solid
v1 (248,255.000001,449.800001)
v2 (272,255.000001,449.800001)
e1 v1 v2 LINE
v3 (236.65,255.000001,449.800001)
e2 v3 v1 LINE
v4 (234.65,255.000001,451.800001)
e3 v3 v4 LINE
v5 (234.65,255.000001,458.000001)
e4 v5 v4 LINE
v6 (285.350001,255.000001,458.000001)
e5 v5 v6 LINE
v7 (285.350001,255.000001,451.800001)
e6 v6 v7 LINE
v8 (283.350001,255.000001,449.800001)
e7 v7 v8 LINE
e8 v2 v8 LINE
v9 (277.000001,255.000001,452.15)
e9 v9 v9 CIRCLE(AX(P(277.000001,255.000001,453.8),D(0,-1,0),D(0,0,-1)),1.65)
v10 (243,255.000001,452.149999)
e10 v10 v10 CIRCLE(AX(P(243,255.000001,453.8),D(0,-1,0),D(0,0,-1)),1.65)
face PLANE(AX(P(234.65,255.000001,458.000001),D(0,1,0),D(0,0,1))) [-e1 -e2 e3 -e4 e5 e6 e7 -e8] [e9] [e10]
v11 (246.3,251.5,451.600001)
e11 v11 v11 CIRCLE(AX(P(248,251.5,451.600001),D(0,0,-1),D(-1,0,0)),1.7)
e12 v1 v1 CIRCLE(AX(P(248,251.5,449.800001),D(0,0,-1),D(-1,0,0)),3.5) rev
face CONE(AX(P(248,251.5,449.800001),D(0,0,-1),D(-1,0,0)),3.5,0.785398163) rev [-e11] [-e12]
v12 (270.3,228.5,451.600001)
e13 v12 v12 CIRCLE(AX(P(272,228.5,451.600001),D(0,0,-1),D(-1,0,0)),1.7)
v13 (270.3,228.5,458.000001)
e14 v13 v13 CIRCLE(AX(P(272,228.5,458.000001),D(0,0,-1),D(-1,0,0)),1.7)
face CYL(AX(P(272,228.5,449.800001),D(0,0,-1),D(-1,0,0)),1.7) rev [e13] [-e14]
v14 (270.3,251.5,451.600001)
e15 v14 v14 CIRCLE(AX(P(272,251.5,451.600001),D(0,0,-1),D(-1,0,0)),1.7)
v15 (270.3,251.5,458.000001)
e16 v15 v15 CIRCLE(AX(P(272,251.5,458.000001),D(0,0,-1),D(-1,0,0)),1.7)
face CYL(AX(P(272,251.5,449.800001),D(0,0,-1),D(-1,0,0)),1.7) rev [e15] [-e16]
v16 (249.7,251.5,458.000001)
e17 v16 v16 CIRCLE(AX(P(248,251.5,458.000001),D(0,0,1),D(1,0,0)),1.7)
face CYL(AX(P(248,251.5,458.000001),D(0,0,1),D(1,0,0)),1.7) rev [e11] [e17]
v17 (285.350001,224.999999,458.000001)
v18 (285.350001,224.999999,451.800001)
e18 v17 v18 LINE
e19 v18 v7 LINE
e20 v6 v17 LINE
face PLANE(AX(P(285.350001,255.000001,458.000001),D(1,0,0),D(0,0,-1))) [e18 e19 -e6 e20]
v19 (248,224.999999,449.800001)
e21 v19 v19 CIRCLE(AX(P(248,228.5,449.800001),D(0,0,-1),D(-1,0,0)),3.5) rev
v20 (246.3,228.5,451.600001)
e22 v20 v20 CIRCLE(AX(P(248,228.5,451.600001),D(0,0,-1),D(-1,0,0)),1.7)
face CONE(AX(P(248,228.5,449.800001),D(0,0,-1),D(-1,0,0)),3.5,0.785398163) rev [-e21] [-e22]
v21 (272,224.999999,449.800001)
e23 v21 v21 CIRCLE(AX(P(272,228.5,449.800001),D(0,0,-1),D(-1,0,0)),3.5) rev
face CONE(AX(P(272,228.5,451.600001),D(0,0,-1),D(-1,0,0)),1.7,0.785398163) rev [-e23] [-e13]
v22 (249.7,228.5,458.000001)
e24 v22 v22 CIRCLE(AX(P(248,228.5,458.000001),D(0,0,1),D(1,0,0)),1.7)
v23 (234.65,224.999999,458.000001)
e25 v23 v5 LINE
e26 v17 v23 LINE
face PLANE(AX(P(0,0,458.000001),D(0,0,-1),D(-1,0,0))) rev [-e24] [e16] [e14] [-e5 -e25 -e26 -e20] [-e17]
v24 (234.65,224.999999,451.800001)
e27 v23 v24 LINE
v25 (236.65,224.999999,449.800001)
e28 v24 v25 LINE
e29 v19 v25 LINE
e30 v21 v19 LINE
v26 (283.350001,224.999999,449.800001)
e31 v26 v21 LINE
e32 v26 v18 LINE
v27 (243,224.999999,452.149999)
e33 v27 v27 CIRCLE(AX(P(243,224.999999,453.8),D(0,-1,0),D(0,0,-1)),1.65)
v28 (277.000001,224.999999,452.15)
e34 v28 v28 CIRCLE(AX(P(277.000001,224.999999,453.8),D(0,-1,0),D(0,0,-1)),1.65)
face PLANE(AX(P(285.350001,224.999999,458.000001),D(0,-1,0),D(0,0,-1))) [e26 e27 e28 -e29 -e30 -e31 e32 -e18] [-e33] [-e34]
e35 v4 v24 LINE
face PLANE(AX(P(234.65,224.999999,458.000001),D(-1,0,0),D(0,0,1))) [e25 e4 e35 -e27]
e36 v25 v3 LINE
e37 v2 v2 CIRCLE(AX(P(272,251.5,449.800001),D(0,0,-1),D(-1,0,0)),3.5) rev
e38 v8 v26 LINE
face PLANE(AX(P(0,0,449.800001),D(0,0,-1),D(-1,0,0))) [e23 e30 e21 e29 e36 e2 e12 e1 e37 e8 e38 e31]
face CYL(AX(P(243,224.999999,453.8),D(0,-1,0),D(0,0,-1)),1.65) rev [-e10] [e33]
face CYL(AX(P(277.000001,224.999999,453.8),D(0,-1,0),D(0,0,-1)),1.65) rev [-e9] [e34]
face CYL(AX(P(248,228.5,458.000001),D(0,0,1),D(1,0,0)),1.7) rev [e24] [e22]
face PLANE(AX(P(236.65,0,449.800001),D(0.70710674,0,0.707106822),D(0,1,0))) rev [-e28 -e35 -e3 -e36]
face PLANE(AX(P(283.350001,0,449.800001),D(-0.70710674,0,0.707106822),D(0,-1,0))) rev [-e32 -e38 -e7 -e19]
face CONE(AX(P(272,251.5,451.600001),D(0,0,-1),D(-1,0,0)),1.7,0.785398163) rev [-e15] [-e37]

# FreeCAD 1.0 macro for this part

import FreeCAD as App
import Part
import Sketcher
Q = App.Units.Quantity


def edges_at(feature, points):
    """Names of the edges that pass closest to the given points."""
    edges = feature.Shape.Edges
    near = lambda p: min(range(len(edges)), key=lambda i: edges[i].distToShape(Part.Vertex(*p))[0])
    return sorted({f"Edge{near(p) + 1}" for p in points})


def add_polygon(sketch, points):
    """Adds a closed chain of lines whose ends are joined by coincident constraints."""
    first, n = sketch.GeometryCount, len(points)
    for a, b in zip(points, points[1:] + points[:1]):
        sketch.addGeometry(Part.LineSegment(App.Vector(*a, 0), App.Vector(*b, 0)), False)
    for i in range(n):
        sketch.addConstraint(Sketcher.Constraint("Coincident", first + i, 2, first + (i + 1) % n, 1))

doc = App.newDocument("Part")
params = doc.addObject("Spreadsheet::Sheet", "Params")
for row, (alias, value) in enumerate([
    ("sketch1_height", "30.000002 mm"),
    ("sketch1_width", "50.700001 mm"),
    ("pad1_length", "8.2 mm"),
    ("sketch2_diameter", "3.300001 mm"),
    ("hole_diameter", "3.300001 mm"),
    ("hole_depth", "30.000002 mm"),
    ("sketch3_diameter", "3.4 mm"),
    ("hole2_diameter", "3.4 mm"),
    ("hole2_depth", "8.2 mm"),
    ("sketch4_diameter", "3.4 mm"),
    ("hole3_diameter", "3.4 mm"),
    ("hole3_depth", "8.2 mm"),
    ("chamfer_size", "1.8 mm"),
    ("chamfer2_size", "2 mm"),
    ("chamfer2_size2", "2 mm"),
], start=1):
    params.set(f"A{row}", alias)
    params.set(f"B{row}", "=" + value)
    params.setAlias(f"B{row}", alias)

body = doc.addObject("PartDesign::Body", "Body")

# Sketch on XY plane
sketch1 = body.newObject("Sketcher::SketchObject", "Sketch")
sketch1.AttachmentSupport = (doc.getObject("XY_Plane"), [""])
sketch1.MapMode = "FlatFace"
sketch1.AttachmentOffset = App.Placement(App.Vector(0, 0, 449.800001), App.Rotation())
add_polygon(sketch1, [(285.350001, 255.000001), (285.350001, 224.999999), (234.65, 224.999999), (234.65, 255.000001)])  # lines 0-3
sketch1.addConstraint([
    Sketcher.Constraint("Vertical", 0),
    Sketcher.Constraint("Horizontal", 1),
    Sketcher.Constraint("Vertical", 2),
    Sketcher.Constraint("Horizontal", 3),
    Sketcher.Constraint("DistanceY", 0, 2, 0, 1, Q("30.000002 mm")),
    Sketcher.Constraint("DistanceX", 1, 2, 1, 1, Q("50.700001 mm")),
    Sketcher.Constraint("DistanceY", -1, 1, 0, 2, Q("224.999999 mm")),
    Sketcher.Constraint("DistanceX", -1, 1, 0, 2, Q("285.350001 mm")),
])
sketch1.setExpression("Constraints[8]", "Params.sketch1_height")
sketch1.setExpression("Constraints[9]", "Params.sketch1_width")
pad1 = body.newObject("PartDesign::Pad", "Pad")
pad1.Profile = sketch1
pad1.setExpression("Length", "Params.pad1_length")

# Sketch on XZ plane
sketch2 = body.newObject("Sketcher::SketchObject", "Sketch001")
sketch2.AttachmentSupport = (doc.getObject("XZ_Plane"), [""])
sketch2.MapMode = "FlatFace"
sketch2.AttachmentOffset = App.Placement(App.Vector(0, 0, -224.999999), App.Rotation())
sketch2.addGeometry([
    Part.Circle(App.Vector(277.000001, 453.8, 0), App.Vector(0, 0, 1), 1.65),
    Part.Circle(App.Vector(243, 453.8, 0), App.Vector(0, 0, 1), 1.65),
], False)
sketch2.addConstraint([
    Sketcher.Constraint("Equal", 0, 1),
    Sketcher.Constraint("Horizontal", 0, 3, 1, 3),
    Sketcher.Constraint("Diameter", 0, Q("3.300001 mm")),
    Sketcher.Constraint("DistanceX", -1, 1, 0, 3, Q("277.000001 mm")),
    Sketcher.Constraint("DistanceX", -1, 1, 1, 3, Q("243 mm")),
    Sketcher.Constraint("DistanceY", -1, 1, 0, 3, Q("453.8 mm")),
])
sketch2.setExpression("Constraints[2]", "Params.sketch2_diameter")
doc.recompute()
hole = body.newObject("PartDesign::Hole", "Hole")
hole.Profile = sketch2
hole.ThreadType = "None"
hole.setExpression("Diameter", "Params.hole_diameter")
hole.DepthType = "Dimension"
hole.setExpression("Depth", "Params.hole_depth")
hole.DrillPoint = "Flat"

# Sketch on XY plane
sketch3 = body.newObject("Sketcher::SketchObject", "Sketch002")
sketch3.AttachmentSupport = (doc.getObject("XY_Plane"), [""])
sketch3.MapMode = "FlatFace"
sketch3.AttachmentOffset = App.Placement(App.Vector(0, 0, 449.800001), App.Rotation())
sketch3.addGeometry([
    Part.Circle(App.Vector(272, 251.5, 0), App.Vector(0, 0, 1), 1.7),
    Part.Circle(App.Vector(272, 228.5, 0), App.Vector(0, 0, 1), 1.7),
], False)
sketch3.addConstraint([
    Sketcher.Constraint("Equal", 0, 1),
    Sketcher.Constraint("Vertical", 0, 3, 1, 3),
    Sketcher.Constraint("Diameter", 0, Q("3.4 mm")),
    Sketcher.Constraint("DistanceX", -1, 1, 0, 3, Q("272 mm")),
    Sketcher.Constraint("DistanceY", 1, 3, 0, 3, Q("23 mm")),
    Sketcher.Constraint("DistanceY", -1, 1, 0, 3, Q("251.5 mm")),
])
sketch3.setExpression("Constraints[2]", "Params.sketch3_diameter")
doc.recompute()
hole2 = body.newObject("PartDesign::Hole", "Hole001")
hole2.Profile = sketch3
hole2.ThreadType = "None"
hole2.setExpression("Diameter", "Params.hole2_diameter")
hole2.DepthType = "Dimension"
hole2.setExpression("Depth", "Params.hole2_depth")
hole2.DrillPoint = "Flat"
hole2.Reversed = True

# Sketch on XY plane
sketch4 = body.newObject("Sketcher::SketchObject", "Sketch003")
sketch4.AttachmentSupport = (doc.getObject("XY_Plane"), [""])
sketch4.MapMode = "FlatFace"
sketch4.AttachmentOffset = App.Placement(App.Vector(0, 0, 458.000001), App.Rotation())
sketch4.addGeometry([
    Part.Circle(App.Vector(248, 251.5, 0), App.Vector(0, 0, 1), 1.7),
    Part.Circle(App.Vector(248, 228.5, 0), App.Vector(0, 0, 1), 1.7),
], False)
sketch4.addConstraint([
    Sketcher.Constraint("Equal", 0, 1),
    Sketcher.Constraint("Vertical", 0, 3, 1, 3),
    Sketcher.Constraint("Diameter", 0, Q("3.4 mm")),
    Sketcher.Constraint("DistanceX", -1, 1, 0, 3, Q("248 mm")),
    Sketcher.Constraint("DistanceY", 1, 3, 0, 3, Q("23 mm")),
    Sketcher.Constraint("DistanceY", -1, 1, 0, 3, Q("251.5 mm")),
])
sketch4.setExpression("Constraints[2]", "Params.sketch4_diameter")
doc.recompute()
hole3 = body.newObject("PartDesign::Hole", "Hole002")
hole3.Profile = sketch4
hole3.ThreadType = "None"
hole3.setExpression("Diameter", "Params.hole3_diameter")
hole3.DepthType = "Dimension"
hole3.setExpression("Depth", "Params.hole3_depth")
hole3.DrillPoint = "Flat"
doc.recompute()

chamfer = body.newObject("PartDesign::Chamfer", "Chamfer")
chamfer.Base = (hole3, edges_at(hole3, [
    (270.3, 228.5, 449.8),
    (270.3, 251.5, 449.8),
    (249.7, 228.5, 449.8),
    (249.7, 251.5, 449.8),
]))
chamfer.setExpression("Size", "Params.chamfer_size")
doc.recompute()

chamfer2 = body.newObject("PartDesign::Chamfer", "Chamfer001")
chamfer2.Base = (chamfer, edges_at(chamfer, [(234.65, 240, 449.8), (285.35, 240, 449.8)]))
chamfer2.ChamferType = "Two distances"
chamfer2.setExpression("Size", "Params.chamfer2_size")
chamfer2.setExpression("Size2", "Params.chamfer2_size2")

doc.recompute()
